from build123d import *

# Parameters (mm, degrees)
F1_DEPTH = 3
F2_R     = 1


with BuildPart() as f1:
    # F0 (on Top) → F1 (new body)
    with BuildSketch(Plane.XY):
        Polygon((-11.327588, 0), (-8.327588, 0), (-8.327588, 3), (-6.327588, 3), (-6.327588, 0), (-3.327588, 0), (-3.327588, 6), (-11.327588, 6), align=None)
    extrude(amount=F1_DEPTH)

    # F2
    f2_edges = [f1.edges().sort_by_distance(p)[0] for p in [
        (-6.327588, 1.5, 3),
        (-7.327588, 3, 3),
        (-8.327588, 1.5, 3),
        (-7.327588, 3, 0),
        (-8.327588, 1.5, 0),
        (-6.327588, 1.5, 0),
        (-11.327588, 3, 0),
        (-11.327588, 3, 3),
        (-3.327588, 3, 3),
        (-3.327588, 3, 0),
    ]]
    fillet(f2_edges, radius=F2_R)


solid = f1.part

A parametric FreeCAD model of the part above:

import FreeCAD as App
import Part
import Sketcher


def edges_at(feature, points):
    """Names of the edges that pass closest to the given points."""
    edges = feature.Shape.Edges
    near = lambda p: min(range(len(edges)), key=lambda i: edges[i].distToShape(Part.Vertex(*p))[0])
    return sorted({f"Edge{near(p) + 1}" for p in points})


def add_polygon(sketch, points):
    """Adds a closed chain of lines whose ends are joined by coincident constraints."""
    first, n = sketch.GeometryCount, len(points)
    for a, b in zip(points, points[1:] + points[:1]):
        sketch.addGeometry(Part.LineSegment(App.Vector(*a, 0), App.Vector(*b, 0)), False)
    for i in range(n):
        sketch.addConstraint(Sketcher.Constraint("Coincident", first + i, 2, first + (i + 1) % n, 1))

doc = App.newDocument("Part")
body = doc.addObject("PartDesign::Body", "Body")

sketch1 = body.newObject("Sketcher::SketchObject", "Sketch")
sketch1.AttachmentSupport = (doc.getObject("XY_Plane"), [""])
sketch1.MapMode = "FlatFace"
add_polygon(sketch1, [(-11.3, 0), (-8.3, 0), (-8.3, 3), (-6.3, 3), (-6.3, 0), (-3.3, 0), (-3.3, 6), (-11.3, 6)])
sketch1.addConstraint(Sketcher.Constraint("Horizontal", 0))
sketch1.addConstraint(Sketcher.Constraint("Vertical", 1))
sketch1.addConstraint(Sketcher.Constraint("Horizontal", 2))
sketch1.addConstraint(Sketcher.Constraint("Vertical", 3))
sketch1.addConstraint(Sketcher.Constraint("Horizontal", 4))
sketch1.addConstraint(Sketcher.Constraint("Vertical", 5))
sketch1.addConstraint(Sketcher.Constraint("Horizontal", 6))
sketch1.addConstraint(Sketcher.Constraint("Vertical", 7))
sketch1.addConstraint(Sketcher.Constraint("PointOnObject", 0, 2, -1))
sketch1.addConstraint(Sketcher.Constraint("PointOnObject", 3, 2, -1))
sketch1.addConstraint(Sketcher.Constraint("Equal", 0, 4))
sketch1.addConstraint(Sketcher.Constraint("Equal", 4, 1))
sketch1.addConstraint(Sketcher.Constraint("DistanceX", 0, 1, 0, 2, 3.0))
sketch1.addConstraint(Sketcher.Constraint("DistanceX", 2, 1, 2, 2, 2.0))
sketch1.addConstraint(Sketcher.Constraint("DistanceY", 5, 1, 5, 2, 6.0))
sketch1.addConstraint(Sketcher.Constraint("DistanceX", 2, 2, -1, 1, 6.327588))
pad1 = body.newObject("PartDesign::Pad", "Pad")
pad1.Profile = sketch1
pad1.Length = 3
doc.recompute()

fillet = body.newObject("PartDesign::Fillet", "Fillet")
fillet.Base = (pad1, edges_at(pad1, [
    (-6.328, 1.5, 3),
    (-7.328, 3, 3),
    (-8.328, 1.5, 3),
    (-7.328, 3, 0),
    (-8.328, 1.5, 0),
    (-6.328, 1.5, 0),
    (-11.328, 3, 0),
    (-11.328, 3, 3),
    (-3.328, 3, 3),
    (-3.328, 3, 0),
]))
fillet.Radius = 1

doc.recompute()
